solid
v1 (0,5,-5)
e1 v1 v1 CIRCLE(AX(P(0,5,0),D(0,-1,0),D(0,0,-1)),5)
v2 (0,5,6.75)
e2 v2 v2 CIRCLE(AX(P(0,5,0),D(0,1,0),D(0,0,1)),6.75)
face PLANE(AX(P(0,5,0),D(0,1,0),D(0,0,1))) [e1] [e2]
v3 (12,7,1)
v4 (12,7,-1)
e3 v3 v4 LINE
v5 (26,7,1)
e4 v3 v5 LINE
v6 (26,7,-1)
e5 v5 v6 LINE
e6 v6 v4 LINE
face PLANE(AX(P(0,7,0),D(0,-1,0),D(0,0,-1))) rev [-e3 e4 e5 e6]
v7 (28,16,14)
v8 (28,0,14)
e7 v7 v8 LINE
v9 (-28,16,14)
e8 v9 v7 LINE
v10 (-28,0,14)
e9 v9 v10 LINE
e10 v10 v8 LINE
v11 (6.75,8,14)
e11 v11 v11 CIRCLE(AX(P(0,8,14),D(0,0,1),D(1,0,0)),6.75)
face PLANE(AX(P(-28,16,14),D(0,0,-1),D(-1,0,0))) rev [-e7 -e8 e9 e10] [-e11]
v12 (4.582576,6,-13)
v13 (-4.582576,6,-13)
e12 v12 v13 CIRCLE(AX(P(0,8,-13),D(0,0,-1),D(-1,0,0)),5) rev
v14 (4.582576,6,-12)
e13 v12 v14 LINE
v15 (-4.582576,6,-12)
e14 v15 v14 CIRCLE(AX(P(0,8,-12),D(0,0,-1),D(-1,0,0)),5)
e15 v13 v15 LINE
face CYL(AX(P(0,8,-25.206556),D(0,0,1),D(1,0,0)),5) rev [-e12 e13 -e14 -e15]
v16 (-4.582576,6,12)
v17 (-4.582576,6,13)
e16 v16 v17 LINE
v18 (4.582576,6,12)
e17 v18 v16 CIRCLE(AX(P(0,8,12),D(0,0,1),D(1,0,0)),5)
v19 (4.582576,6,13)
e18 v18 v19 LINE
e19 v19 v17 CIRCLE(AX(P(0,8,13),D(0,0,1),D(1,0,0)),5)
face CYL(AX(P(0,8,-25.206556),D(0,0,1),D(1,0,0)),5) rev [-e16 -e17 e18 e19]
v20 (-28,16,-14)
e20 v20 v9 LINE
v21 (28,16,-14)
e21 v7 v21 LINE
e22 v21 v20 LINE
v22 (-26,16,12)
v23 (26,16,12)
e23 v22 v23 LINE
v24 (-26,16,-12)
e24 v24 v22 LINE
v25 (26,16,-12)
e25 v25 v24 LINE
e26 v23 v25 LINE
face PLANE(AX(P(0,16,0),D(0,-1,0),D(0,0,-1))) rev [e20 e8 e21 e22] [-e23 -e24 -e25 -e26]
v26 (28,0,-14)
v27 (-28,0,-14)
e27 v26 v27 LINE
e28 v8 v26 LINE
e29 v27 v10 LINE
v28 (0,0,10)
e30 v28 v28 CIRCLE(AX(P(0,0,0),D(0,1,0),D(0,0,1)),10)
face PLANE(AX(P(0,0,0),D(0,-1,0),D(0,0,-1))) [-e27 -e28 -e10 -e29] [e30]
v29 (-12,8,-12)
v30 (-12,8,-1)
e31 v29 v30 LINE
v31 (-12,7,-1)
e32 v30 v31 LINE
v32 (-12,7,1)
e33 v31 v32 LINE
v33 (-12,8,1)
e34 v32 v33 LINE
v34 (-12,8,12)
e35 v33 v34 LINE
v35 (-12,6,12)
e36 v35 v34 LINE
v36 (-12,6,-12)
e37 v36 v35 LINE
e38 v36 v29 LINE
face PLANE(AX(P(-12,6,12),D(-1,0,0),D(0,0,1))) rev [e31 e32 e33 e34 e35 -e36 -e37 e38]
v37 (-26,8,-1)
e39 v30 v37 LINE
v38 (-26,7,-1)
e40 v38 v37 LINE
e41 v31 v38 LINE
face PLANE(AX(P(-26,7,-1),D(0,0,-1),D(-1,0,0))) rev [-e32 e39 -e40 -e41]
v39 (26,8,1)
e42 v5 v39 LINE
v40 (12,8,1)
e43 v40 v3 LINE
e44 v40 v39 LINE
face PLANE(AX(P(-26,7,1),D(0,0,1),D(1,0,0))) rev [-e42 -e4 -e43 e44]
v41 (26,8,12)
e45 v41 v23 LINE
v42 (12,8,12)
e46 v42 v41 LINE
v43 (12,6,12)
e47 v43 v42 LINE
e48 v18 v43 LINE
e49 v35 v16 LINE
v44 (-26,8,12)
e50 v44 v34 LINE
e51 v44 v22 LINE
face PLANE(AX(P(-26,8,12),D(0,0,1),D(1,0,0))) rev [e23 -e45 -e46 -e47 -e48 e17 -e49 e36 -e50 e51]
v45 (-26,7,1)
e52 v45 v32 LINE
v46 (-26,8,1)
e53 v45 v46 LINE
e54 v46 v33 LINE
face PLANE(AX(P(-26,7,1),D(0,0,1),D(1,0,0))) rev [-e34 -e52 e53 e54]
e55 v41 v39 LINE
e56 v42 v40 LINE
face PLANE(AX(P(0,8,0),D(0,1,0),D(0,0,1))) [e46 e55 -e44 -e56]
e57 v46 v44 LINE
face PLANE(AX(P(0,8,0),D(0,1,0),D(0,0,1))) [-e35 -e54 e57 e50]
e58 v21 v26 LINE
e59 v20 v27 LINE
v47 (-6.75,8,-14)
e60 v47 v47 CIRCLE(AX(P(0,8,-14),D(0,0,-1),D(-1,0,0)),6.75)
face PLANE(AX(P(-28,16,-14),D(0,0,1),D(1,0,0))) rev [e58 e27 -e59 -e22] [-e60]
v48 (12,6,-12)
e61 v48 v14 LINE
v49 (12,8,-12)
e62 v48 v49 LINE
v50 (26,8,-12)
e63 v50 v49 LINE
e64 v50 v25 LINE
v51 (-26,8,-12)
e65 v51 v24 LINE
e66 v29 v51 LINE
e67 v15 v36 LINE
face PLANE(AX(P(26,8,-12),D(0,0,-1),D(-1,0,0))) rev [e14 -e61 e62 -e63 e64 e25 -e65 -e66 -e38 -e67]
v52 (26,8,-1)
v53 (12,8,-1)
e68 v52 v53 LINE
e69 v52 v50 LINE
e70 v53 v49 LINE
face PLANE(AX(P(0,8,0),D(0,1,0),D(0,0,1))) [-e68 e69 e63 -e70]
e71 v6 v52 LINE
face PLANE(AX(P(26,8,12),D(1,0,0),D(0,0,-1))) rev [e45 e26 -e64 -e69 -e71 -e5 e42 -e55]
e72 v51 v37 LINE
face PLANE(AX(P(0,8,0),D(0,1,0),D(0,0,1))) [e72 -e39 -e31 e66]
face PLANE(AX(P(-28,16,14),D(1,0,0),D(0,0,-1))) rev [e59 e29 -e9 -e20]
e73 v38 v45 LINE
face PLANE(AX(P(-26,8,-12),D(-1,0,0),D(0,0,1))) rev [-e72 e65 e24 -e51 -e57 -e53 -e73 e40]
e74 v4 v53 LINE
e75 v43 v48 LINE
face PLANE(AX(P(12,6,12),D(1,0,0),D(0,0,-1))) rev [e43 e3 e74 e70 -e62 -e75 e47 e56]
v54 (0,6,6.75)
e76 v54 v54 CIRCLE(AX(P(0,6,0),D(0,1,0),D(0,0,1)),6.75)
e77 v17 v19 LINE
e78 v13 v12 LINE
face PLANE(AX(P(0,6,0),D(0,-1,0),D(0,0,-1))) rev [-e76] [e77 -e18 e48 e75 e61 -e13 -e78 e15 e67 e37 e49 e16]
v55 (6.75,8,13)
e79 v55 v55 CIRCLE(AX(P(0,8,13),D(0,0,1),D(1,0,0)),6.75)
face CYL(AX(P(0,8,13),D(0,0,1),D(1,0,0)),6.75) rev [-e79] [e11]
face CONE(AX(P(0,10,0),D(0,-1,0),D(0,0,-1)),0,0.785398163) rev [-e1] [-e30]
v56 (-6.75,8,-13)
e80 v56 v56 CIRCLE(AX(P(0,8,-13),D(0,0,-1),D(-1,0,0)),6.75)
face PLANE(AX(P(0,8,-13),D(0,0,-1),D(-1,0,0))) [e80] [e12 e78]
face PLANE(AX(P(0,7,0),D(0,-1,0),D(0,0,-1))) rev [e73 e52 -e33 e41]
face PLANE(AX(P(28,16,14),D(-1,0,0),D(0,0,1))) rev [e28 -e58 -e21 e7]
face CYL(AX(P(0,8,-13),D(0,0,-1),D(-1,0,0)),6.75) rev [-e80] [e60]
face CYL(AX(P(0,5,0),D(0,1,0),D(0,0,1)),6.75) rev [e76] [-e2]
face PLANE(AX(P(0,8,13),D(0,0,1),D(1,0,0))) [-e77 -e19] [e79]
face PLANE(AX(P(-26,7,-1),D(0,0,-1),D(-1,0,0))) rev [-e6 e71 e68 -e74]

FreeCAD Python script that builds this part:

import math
import FreeCAD as App
import Part
import Sketcher
from FreeCAD import Vector
Q = App.Units.Quantity


def add_polygon(sketch, points):
    """Adds a closed chain of lines whose ends are joined by coincident constraints."""
    first, n = sketch.GeometryCount, len(points)
    for a, b in zip(points, points[1:] + points[:1]):
        sketch.addGeometry(Part.LineSegment(App.Vector(*a, 0), App.Vector(*b, 0)), False)
    for i in range(n):
        sketch.addConstraint(Sketcher.Constraint("Coincident", first + i, 2, first + (i + 1) % n, 1))

doc = App.newDocument("Part")
params = doc.addObject("Spreadsheet::Sheet", "Params")
for row, (alias, value) in enumerate([
    ("sketch1_width", "56 mm"),
    ("sketch1_height", "28 mm"),
    ("pad1_length", "16 mm"),
    ("sketch2_width", "52 mm"),
    ("sketch2_height", "24 mm"),
    ("pocket1_length", "8 mm"),
    ("sketch3_width", "24 mm"),
    ("pocket2_length", "2 mm"),
    ("sketch4_width", "52 mm"),
    ("sketch4_height", "2 mm"),
    ("pocket3_length", "1 mm"),
    ("sketch5_diameter", "13.5 mm"),
    ("pocket4_length", "1 mm"),
    ("sketch6_diameter", "10 mm"),
    ("sketch7_diameter", "13.5 mm"),
    ("pocket6_length", "1 mm"),
    ("sketch8_diameter", "13.5 mm"),
    ("pocket7_length", "1 mm"),
    ("sketch9_radius", "5 mm"),
    ("pocket8_length", "26 mm"),
    ("sketch10_width", "10 mm"),
    ("groove_angle", "360 deg"),
], start=1):
    params.set(f"A{row}", alias)
    params.set(f"B{row}", "=" + value)
    params.setAlias(f"B{row}", alias)

body = doc.addObject("PartDesign::Body", "Body")

# Sketch on XZ plane
sketch1 = doc.addObject("Sketcher::SketchObject", "Sketch")
body.addObject(sketch1)
sketch1.AttachmentSupport = (doc.XZ_Plane, [""])
sketch1.MapMode = "FlatFace"
add_polygon(sketch1, [(-28, -14), (-28, 14), (28, 14), (28, -14)])  # lines 0-3
sketch1.addConstraint([
    Sketcher.Constraint("Vertical", 0),
    Sketcher.Constraint("Horizontal", 1),
    Sketcher.Constraint("Vertical", 2),
    Sketcher.Constraint("Horizontal", 3),
    Sketcher.Constraint("Symmetric", 0, 2, 2, 2, -1, 1),
    Sketcher.Constraint("DistanceX", 1, 1, 1, 2, Q("56 mm")),
    Sketcher.Constraint("DistanceY", 0, 1, 0, 2, Q("28 mm")),
])
sketch1.setExpression("Constraints[9]", "Params.sketch1_width")
sketch1.setExpression("Constraints[10]", "Params.sketch1_height")
pad1 = doc.addObject("PartDesign::Pad", "Pad")
body.addObject(pad1)
pad1.Profile = sketch1
pad1.setExpression("Length", "Params.pad1_length")
pad1.Reversed = True

# Sketch on XZ plane
sketch2 = doc.addObject("Sketcher::SketchObject", "Sketch001")
body.addObject(sketch2)
sketch2.AttachmentSupport = (doc.XZ_Plane, [""])
sketch2.MapMode = "FlatFace"
sketch2.AttachmentOffset = App.Placement(Vector(0, 0, -16), App.Rotation())
add_polygon(sketch2, [(-26, -12), (-26, 12), (26, 12), (26, -12)])  # lines 0-3
sketch2.addConstraint([
    Sketcher.Constraint("Vertical", 0),
    Sketcher.Constraint("Horizontal", 1),
    Sketcher.Constraint("Vertical", 2),
    Sketcher.Constraint("Horizontal", 3),
    Sketcher.Constraint("Symmetric", 0, 2, 2, 2, -1, 1),
    Sketcher.Constraint("DistanceX", 1, 1, 1, 2, Q("52 mm")),
    Sketcher.Constraint("DistanceY", 0, 1, 0, 2, Q("24 mm")),
])
sketch2.setExpression("Constraints[9]", "Params.sketch2_width")
sketch2.setExpression("Constraints[10]", "Params.sketch2_height")
pocket1 = doc.addObject("PartDesign::Pocket", "Pocket")
body.addObject(pocket1)
pocket1.Profile = sketch2
pocket1.setExpression("Length", "Params.pocket1_length")
pocket1.Reversed = True

# Sketch on XZ plane
sketch3 = doc.addObject("Sketcher::SketchObject", "Sketch002")
body.addObject(sketch3)
sketch3.AttachmentSupport = (doc.XZ_Plane, [""])
sketch3.MapMode = "FlatFace"
sketch3.AttachmentOffset = App.Placement(Vector(0, 0, -8), App.Rotation())
add_polygon(sketch3, [(-12, -12), (-12, 12), (12, 12), (12, -12)])  # lines 0-3
sketch3.addConstraint([
    Sketcher.Constraint("Vertical", 0),
    Sketcher.Constraint("Horizontal", 1),
    Sketcher.Constraint("Vertical", 2),
    Sketcher.Constraint("Horizontal", 3),
    Sketcher.Constraint("Symmetric", 0, 2, 2, 2, -1, 1),
    Sketcher.Constraint("Equal", 3, 0),
    Sketcher.Constraint("DistanceX", 1, 1, 1, 2, Q("24 mm")),
])
sketch3.setExpression("Constraints[10]", "Params.sketch3_width")
pocket2 = doc.addObject("PartDesign::Pocket", "Pocket001")
body.addObject(pocket2)
pocket2.Profile = sketch3
pocket2.setExpression("Length", "Params.pocket2_length")
pocket2.Reversed = True

# Sketch on XZ plane
sketch4 = doc.addObject("Sketcher::SketchObject", "Sketch003")
body.addObject(sketch4)
sketch4.AttachmentSupport = (doc.XZ_Plane, [""])
sketch4.MapMode = "FlatFace"
sketch4.AttachmentOffset = App.Placement(Vector(0, 0, -8), App.Rotation())
add_polygon(sketch4, [(-26, -1), (-26, 1), (26, 1), (26, -1)])  # lines 0-3
sketch4.addConstraint([
    Sketcher.Constraint("Vertical", 0),
    Sketcher.Constraint("Horizontal", 1),
    Sketcher.Constraint("Vertical", 2),
    Sketcher.Constraint("Horizontal", 3),
    Sketcher.Constraint("Symmetric", 0, 2, 2, 2, -1, 1),
    Sketcher.Constraint("DistanceX", 1, 1, 1, 2, Q("52 mm")),
    Sketcher.Constraint("DistanceY", 0, 1, 0, 2, Q("2 mm")),
])
sketch4.setExpression("Constraints[9]", "Params.sketch4_width")
sketch4.setExpression("Constraints[10]", "Params.sketch4_height")
pocket3 = doc.addObject("PartDesign::Pocket", "Pocket002")
body.addObject(pocket3)
pocket3.Profile = sketch4
pocket3.setExpression("Length", "Params.pocket3_length")
pocket3.Reversed = True

# Sketch on XZ plane
sketch5 = doc.addObject("Sketcher::SketchObject", "Sketch004")
body.addObject(sketch5)
sketch5.AttachmentSupport = (doc.XZ_Plane, [""])
sketch5.MapMode = "FlatFace"
sketch5.AttachmentOffset = App.Placement(Vector(0, 0, -6), App.Rotation())
sketch5.addGeometry(Part.Circle(Vector(0, 0, 0), Vector(0, 0, 1), 6.75), False)
sketch5.addConstraint([
    Sketcher.Constraint("Coincident", 0, 3, -1, 1),
    Sketcher.Constraint("Diameter", 0, Q("13.5 mm")),
])
sketch5.setExpression("Constraints[1]", "Params.sketch5_diameter")
pocket4 = doc.addObject("PartDesign::Pocket", "Pocket003")
body.addObject(pocket4)
pocket4.Profile = sketch5
pocket4.setExpression("Length", "Params.pocket4_length")
pocket4.Reversed = True

# Sketch on XZ plane
sketch6 = doc.addObject("Sketcher::SketchObject", "Sketch005")
body.addObject(sketch6)
sketch6.AttachmentSupport = (doc.XZ_Plane, [""])
sketch6.MapMode = "FlatFace"
sketch6.AttachmentOffset = App.Placement(Vector(0, 0, -5), App.Rotation())
sketch6.addGeometry(Part.Circle(Vector(0, 0, 0), Vector(0, 0, 1), 5), False)
sketch6.addConstraint([
    Sketcher.Constraint("Coincident", 0, 3, -1, 1),
    Sketcher.Constraint("Diameter", 0, Q("10 mm")),
])
sketch6.setExpression("Constraints[1]", "Params.sketch6_diameter")
pocket5 = doc.addObject("PartDesign::Pocket", "Pocket004")
body.addObject(pocket5)
pocket5.Profile = sketch6
pocket5.Type = "UpToFirst"
pocket5.Reversed = True

# Sketch on XY plane
sketch7 = doc.addObject("Sketcher::SketchObject", "Sketch006")
body.addObject(sketch7)
sketch7.AttachmentSupport = (doc.XY_Plane, [""])
sketch7.MapMode = "FlatFace"
sketch7.AttachmentOffset = App.Placement(Vector(0, 0, 14), App.Rotation())
sketch7.addGeometry(Part.Circle(Vector(0, 8, 0), Vector(0, 0, 1), 6.75), False)
sketch7.addConstraint([
    Sketcher.Constraint("PointOnObject", 0, 3, -2),
    Sketcher.Constraint("Diameter", 0, Q("13.5 mm")),
    Sketcher.Constraint("DistanceY", -1, 1, 0, 3, Q("8 mm")),
])
sketch7.setExpression("Constraints[1]", "Params.sketch7_diameter")
pocket6 = doc.addObject("PartDesign::Pocket", "Pocket005")
body.addObject(pocket6)
pocket6.Profile = sketch7
pocket6.setExpression("Length", "Params.pocket6_length")

# Sketch on XY plane
sketch8 = doc.addObject("Sketcher::SketchObject", "Sketch007")
body.addObject(sketch8)
sketch8.AttachmentSupport = (doc.XY_Plane, [""])
sketch8.MapMode = "FlatFace"
sketch8.AttachmentOffset = App.Placement(Vector(0, 0, -14), App.Rotation())
sketch8.addGeometry(Part.Circle(Vector(0, 8, 0), Vector(0, 0, 1), 6.75), False)
sketch8.addConstraint([
    Sketcher.Constraint("PointOnObject", 0, 3, -2),
    Sketcher.Constraint("Diameter", 0, Q("13.5 mm")),
    Sketcher.Constraint("DistanceY", -1, 1, 0, 3, Q("8 mm")),
])
sketch8.setExpression("Constraints[1]", "Params.sketch8_diameter")
pocket7 = doc.addObject("PartDesign::Pocket", "Pocket006")
body.addObject(pocket7)
pocket7.Profile = sketch8
pocket7.setExpression("Length", "Params.pocket7_length")
pocket7.Reversed = True

# Sketch on XY plane
sketch9 = doc.addObject("Sketcher::SketchObject", "Sketch008")
body.addObject(sketch9)
sketch9.AttachmentSupport = (doc.XY_Plane, [""])
sketch9.MapMode = "FlatFace"
sketch9.AttachmentOffset = App.Placement(Vector(0, 0, 13), App.Rotation())
sketch9.addGeometry([
    Part.LineSegment(Vector(-4.582576, 6, 0), Vector(4.582576, 6, 0)),
    Part.ArcOfCircle(Part.Circle(Vector(0, 8, 0), Vector(0, 0, 1), 5), math.radians(-23.578178), math.radians(203.578178)),
], False)
sketch9.addConstraint([
    Sketcher.Constraint("Coincident", 0, 1, 1, 2),
    Sketcher.Constraint("Coincident", 1, 1, 0, 2),
    Sketcher.Constraint("Horizontal", 0),
    Sketcher.Constraint("PointOnObject", 1, 3, -2),
    Sketcher.Constraint("Radius", 1, Q("5 mm")),
    Sketcher.Constraint("DistanceY", -1, 1, 1, 3, Q("8 mm")),
    Sketcher.Constraint("DistanceY", -1, 1, 0, 1, Q("6 mm")),
])
sketch9.setExpression("Constraints[4]", "Params.sketch9_radius")
pocket8 = doc.addObject("PartDesign::Pocket", "Pocket007")
body.addObject(pocket8)
pocket8.Profile = sketch9
pocket8.setExpression("Length", "Params.pocket8_length")

# Sketch on YZ plane
sketch10 = doc.addObject("Sketcher::SketchObject", "Sketch009")
body.addObject(sketch10)
sketch10.AttachmentSupport = (doc.YZ_Plane, [""])
sketch10.MapMode = "FlatFace"
add_polygon(sketch10, [(0, 10), (0, 0), (10, 0)])  # lines 0-2
sketch10.addConstraint([
    Sketcher.Constraint("Vertical", 0),
    Sketcher.Constraint("Horizontal", 1),
    Sketcher.Constraint("Coincident", 0, 2, -1, 1),
    Sketcher.Constraint("Equal", 1, 0),
    Sketcher.Constraint("DistanceX", 1, 1, 1, 2, Q("10 mm")),
])
sketch10.setExpression("Constraints[7]", "Params.sketch10_width")
groove = doc.addObject("PartDesign::Groove", "Groove")
body.addObject(groove)
groove.Profile = sketch10
groove.ReferenceAxis = (sketch10, ["H_Axis"])
groove.setExpression("Angle", "Params.groove_angle")

doc.recompute()
